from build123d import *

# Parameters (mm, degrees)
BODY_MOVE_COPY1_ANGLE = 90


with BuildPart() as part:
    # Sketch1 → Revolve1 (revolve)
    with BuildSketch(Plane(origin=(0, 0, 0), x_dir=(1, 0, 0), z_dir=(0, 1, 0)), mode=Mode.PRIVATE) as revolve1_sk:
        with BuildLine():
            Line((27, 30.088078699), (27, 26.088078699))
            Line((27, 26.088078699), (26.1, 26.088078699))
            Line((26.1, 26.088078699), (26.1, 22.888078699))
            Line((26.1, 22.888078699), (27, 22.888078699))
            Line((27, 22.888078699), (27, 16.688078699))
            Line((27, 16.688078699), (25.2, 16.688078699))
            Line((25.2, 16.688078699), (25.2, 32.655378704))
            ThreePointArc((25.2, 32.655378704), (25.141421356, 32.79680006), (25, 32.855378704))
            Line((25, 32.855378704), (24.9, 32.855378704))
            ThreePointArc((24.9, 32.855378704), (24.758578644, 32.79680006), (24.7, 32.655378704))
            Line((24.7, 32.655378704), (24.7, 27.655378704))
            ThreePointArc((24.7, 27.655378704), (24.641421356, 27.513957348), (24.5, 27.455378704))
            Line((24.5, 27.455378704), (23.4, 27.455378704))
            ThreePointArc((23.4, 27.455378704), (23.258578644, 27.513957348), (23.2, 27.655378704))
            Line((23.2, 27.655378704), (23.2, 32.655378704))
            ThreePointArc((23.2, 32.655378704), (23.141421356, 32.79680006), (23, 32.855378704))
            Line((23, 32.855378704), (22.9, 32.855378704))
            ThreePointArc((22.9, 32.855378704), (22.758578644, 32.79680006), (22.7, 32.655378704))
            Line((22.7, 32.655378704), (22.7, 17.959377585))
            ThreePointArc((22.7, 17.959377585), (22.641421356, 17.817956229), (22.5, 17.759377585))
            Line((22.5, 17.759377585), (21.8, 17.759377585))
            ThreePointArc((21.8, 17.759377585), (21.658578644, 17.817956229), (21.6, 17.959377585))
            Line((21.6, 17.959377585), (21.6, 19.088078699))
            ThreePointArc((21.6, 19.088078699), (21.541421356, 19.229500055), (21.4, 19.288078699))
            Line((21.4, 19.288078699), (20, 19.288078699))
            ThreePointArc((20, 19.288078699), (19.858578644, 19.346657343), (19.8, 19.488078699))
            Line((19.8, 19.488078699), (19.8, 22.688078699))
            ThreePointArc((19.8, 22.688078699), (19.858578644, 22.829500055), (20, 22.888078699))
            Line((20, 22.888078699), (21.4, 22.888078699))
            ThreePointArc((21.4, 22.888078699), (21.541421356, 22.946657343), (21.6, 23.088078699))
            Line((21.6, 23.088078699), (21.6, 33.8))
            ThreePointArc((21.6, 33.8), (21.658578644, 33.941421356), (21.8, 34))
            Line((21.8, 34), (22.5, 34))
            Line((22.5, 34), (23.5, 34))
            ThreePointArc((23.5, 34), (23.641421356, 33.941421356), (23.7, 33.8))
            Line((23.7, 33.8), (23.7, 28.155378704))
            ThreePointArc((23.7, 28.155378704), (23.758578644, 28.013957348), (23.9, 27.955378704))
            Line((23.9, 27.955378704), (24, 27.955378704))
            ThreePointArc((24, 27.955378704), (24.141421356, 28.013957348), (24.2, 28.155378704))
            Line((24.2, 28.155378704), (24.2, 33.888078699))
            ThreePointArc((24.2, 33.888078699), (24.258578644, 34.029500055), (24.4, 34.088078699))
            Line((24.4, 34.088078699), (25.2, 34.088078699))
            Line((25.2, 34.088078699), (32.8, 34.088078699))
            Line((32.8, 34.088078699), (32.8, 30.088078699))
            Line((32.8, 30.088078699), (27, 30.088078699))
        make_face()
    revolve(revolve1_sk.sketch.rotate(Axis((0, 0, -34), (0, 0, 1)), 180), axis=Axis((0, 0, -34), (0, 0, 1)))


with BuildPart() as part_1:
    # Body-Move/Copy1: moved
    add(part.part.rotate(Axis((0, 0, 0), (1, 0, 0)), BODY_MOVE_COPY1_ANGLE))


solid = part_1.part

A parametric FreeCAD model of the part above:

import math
import FreeCAD as App
import Part
import Sketcher

V = App.Vector
Q = App.Units.Quantity

doc = App.newDocument("Part")
params = doc.addObject("Spreadsheet::Sheet", "Params")
for row, (alias, value) in enumerate([
    ("sketch1_radius", "0.2 mm"),
    ("sketch1_height", "4 mm"),
    ("sketch1_height2", "5 mm"),
    ("sketch1_width", "5.8 mm"),
    ("sketch1_width2", "8.4 mm"),
    ("revolution_angle", "360 deg"),
], start=1):
    params.set(f"A{row}", alias)
    params.set(f"B{row}", "=" + value)
    params.setAlias(f"B{row}", alias)

body = doc.addObject("PartDesign::Body", "Body")

# Sketch on XZ plane
sketch1 = body.newObject("Sketcher::SketchObject", "Sketch")
sketch1.AttachmentSupport = (doc.getObject("XZ_Plane"), [""])
sketch1.MapMode = "FlatFace"
sketch1.addGeometry(Part.LineSegment(V(27, -26.088079, 0), V(27, -30.088079, 0)), False)
sketch1.addGeometry(Part.LineSegment(V(27, -30.088079, 0), V(32.8, -30.088079, 0)), False)
sketch1.addGeometry(Part.LineSegment(V(32.8, -30.088079, 0), V(32.8, -34.088079, 0)), False)
sketch1.addGeometry(Part.LineSegment(V(32.8, -34.088079, 0), V(24.4, -34.088079, 0)), False)
sketch1.addGeometry(Part.ArcOfCircle(Part.Circle(V(24.4, -33.888079, 0), V(0, 0, 1), 0.2), math.radians(-180), math.radians(-90)), False)
sketch1.addGeometry(Part.LineSegment(V(24.2, -33.888079, 0), V(24.2, -28.155379, 0)), False)
sketch1.addGeometry(Part.ArcOfCircle(Part.Circle(V(24, -28.155379, 0), V(0, 0, 1), 0.2), math.radians(0), math.radians(90)), False)
sketch1.addGeometry(Part.LineSegment(V(24, -27.955379, 0), V(23.9, -27.955379, 0)), False)
sketch1.addGeometry(Part.ArcOfCircle(Part.Circle(V(23.9, -28.155379, 0), V(0, 0, 1), 0.2), math.radians(90), math.radians(180)), False)
sketch1.addGeometry(Part.LineSegment(V(23.7, -28.155379, 0), V(23.7, -33.8, 0)), False)
sketch1.addGeometry(Part.ArcOfCircle(Part.Circle(V(23.5, -33.8, 0), V(0, 0, 1), 0.2), math.radians(-90), math.radians(0)), False)
sketch1.addGeometry(Part.LineSegment(V(23.5, -34, 0), V(21.8, -34, 0)), False)
sketch1.addGeometry(Part.ArcOfCircle(Part.Circle(V(21.8, -33.8, 0), V(0, 0, 1), 0.2), math.radians(-180), math.radians(-90)), False)
sketch1.addGeometry(Part.LineSegment(V(21.6, -33.8, 0), V(21.6, -23.088079, 0)), False)
sketch1.addGeometry(Part.ArcOfCircle(Part.Circle(V(21.4, -23.088079, 0), V(0, 0, 1), 0.2), math.radians(0), math.radians(90)), False)
sketch1.addGeometry(Part.LineSegment(V(21.4, -22.888079, 0), V(20, -22.888079, 0)), False)
sketch1.addGeometry(Part.ArcOfCircle(Part.Circle(V(20, -22.688079, 0), V(0, 0, 1), 0.2), math.radians(-180), math.radians(-90)), False)
sketch1.addGeometry(Part.LineSegment(V(19.8, -22.688079, 0), V(19.8, -19.488079, 0)), False)
sketch1.addGeometry(Part.ArcOfCircle(Part.Circle(V(20, -19.488079, 0), V(0, 0, 1), 0.2), math.radians(90), math.radians(180)), False)
sketch1.addGeometry(Part.LineSegment(V(20, -19.288079, 0), V(21.4, -19.288079, 0)), False)
sketch1.addGeometry(Part.ArcOfCircle(Part.Circle(V(21.4, -19.088079, 0), V(0, 0, 1), 0.2), math.radians(-90), math.radians(0)), False)
sketch1.addGeometry(Part.LineSegment(V(21.6, -19.088079, 0), V(21.6, -17.959378, 0)), False)
sketch1.addGeometry(Part.ArcOfCircle(Part.Circle(V(21.8, -17.959378, 0), V(0, 0, 1), 0.2), math.radians(90), math.radians(180)), False)
sketch1.addGeometry(Part.LineSegment(V(21.8, -17.759378, 0), V(22.5, -17.759378, 0)), False)
sketch1.addGeometry(Part.ArcOfCircle(Part.Circle(V(22.5, -17.959378, 0), V(0, 0, 1), 0.2), math.radians(0), math.radians(90)), False)
sketch1.addGeometry(Part.LineSegment(V(22.7, -17.959378, 0), V(22.7, -32.655379, 0)), False)
sketch1.addGeometry(Part.ArcOfCircle(Part.Circle(V(22.9, -32.655379, 0), V(0, 0, 1), 0.2), math.radians(-180), math.radians(-90)), False)
sketch1.addGeometry(Part.LineSegment(V(22.9, -32.855379, 0), V(23, -32.855379, 0)), False)
sketch1.addGeometry(Part.ArcOfCircle(Part.Circle(V(23, -32.655379, 0), V(0, 0, 1), 0.2), math.radians(-90), math.radians(0)), False)
sketch1.addGeometry(Part.LineSegment(V(23.2, -32.655379, 0), V(23.2, -27.655379, 0)), False)
sketch1.addGeometry(Part.ArcOfCircle(Part.Circle(V(23.4, -27.655379, 0), V(0, 0, 1), 0.2), math.radians(90), math.radians(180)), False)
sketch1.addGeometry(Part.LineSegment(V(23.4, -27.455379, 0), V(24.5, -27.455379, 0)), False)
sketch1.addGeometry(Part.ArcOfCircle(Part.Circle(V(24.5, -27.655379, 0), V(0, 0, 1), 0.2), math.radians(0), math.radians(90)), False)
sketch1.addGeometry(Part.LineSegment(V(24.7, -27.655379, 0), V(24.7, -32.655379, 0)), False)
sketch1.addGeometry(Part.ArcOfCircle(Part.Circle(V(24.9, -32.655379, 0), V(0, 0, 1), 0.2), math.radians(-180), math.radians(-90)), False)
sketch1.addGeometry(Part.LineSegment(V(24.9, -32.855379, 0), V(25, -32.855379, 0)), False)
sketch1.addGeometry(Part.ArcOfCircle(Part.Circle(V(25, -32.655379, 0), V(0, 0, 1), 0.2), math.radians(-90), math.radians(0)), False)
sketch1.addGeometry(Part.LineSegment(V(25.2, -32.655379, 0), V(25.2, -16.688079, 0)), False)
sketch1.addGeometry(Part.LineSegment(V(25.2, -16.688079, 0), V(27, -16.688079, 0)), False)
sketch1.addGeometry(Part.LineSegment(V(27, -16.688079, 0), V(27, -22.888079, 0)), False)
sketch1.addGeometry(Part.LineSegment(V(27, -22.888079, 0), V(26.1, -22.888079, 0)), False)
sketch1.addGeometry(Part.LineSegment(V(26.1, -22.888079, 0), V(26.1, -26.088079, 0)), False)
sketch1.addGeometry(Part.LineSegment(V(26.1, -26.088079, 0), V(27, -26.088079, 0)), False)
sketch1.addConstraint(Sketcher.Constraint("Coincident", 0, 2, 1, 1))
sketch1.addConstraint(Sketcher.Constraint("Coincident", 1, 2, 2, 1))
sketch1.addConstraint(Sketcher.Constraint("Coincident", 2, 2, 3, 1))
sketch1.addConstraint(Sketcher.Constraint("Tangent", 3, 2, 4, 2))
sketch1.addConstraint(Sketcher.Constraint("Tangent", 4, 1, 5, 1))
sketch1.addConstraint(Sketcher.Constraint("Tangent", 5, 2, 6, 1))
sketch1.addConstraint(Sketcher.Constraint("Tangent", 6, 2, 7, 1))
sketch1.addConstraint(Sketcher.Constraint("Tangent", 7, 2, 8, 1))
sketch1.addConstraint(Sketcher.Constraint("Tangent", 8, 2, 9, 1))
sketch1.addConstraint(Sketcher.Constraint("Tangent", 9, 2, 10, 2))
sketch1.addConstraint(Sketcher.Constraint("Tangent", 10, 1, 11, 1))
sketch1.addConstraint(Sketcher.Constraint("Tangent", 11, 2, 12, 2))
sketch1.addConstraint(Sketcher.Constraint("Tangent", 12, 1, 13, 1))
sketch1.addConstraint(Sketcher.Constraint("Tangent", 13, 2, 14, 1))
sketch1.addConstraint(Sketcher.Constraint("Tangent", 14, 2, 15, 1))
sketch1.addConstraint(Sketcher.Constraint("Tangent", 15, 2, 16, 2))
sketch1.addConstraint(Sketcher.Constraint("Tangent", 16, 1, 17, 1))
sketch1.addConstraint(Sketcher.Constraint("Tangent", 17, 2, 18, 2))
sketch1.addConstraint(Sketcher.Constraint("Tangent", 18, 1, 19, 1))
sketch1.addConstraint(Sketcher.Constraint("Tangent", 19, 2, 20, 1))
sketch1.addConstraint(Sketcher.Constraint("Tangent", 20, 2, 21, 1))
sketch1.addConstraint(Sketcher.Constraint("Tangent", 21, 2, 22, 2))
sketch1.addConstraint(Sketcher.Constraint("Tangent", 22, 1, 23, 1))
sketch1.addConstraint(Sketcher.Constraint("Tangent", 23, 2, 24, 2))
sketch1.addConstraint(Sketcher.Constraint("Tangent", 24, 1, 25, 1))
sketch1.addConstraint(Sketcher.Constraint("Tangent", 25, 2, 26, 1))
sketch1.addConstraint(Sketcher.Constraint("Tangent", 26, 2, 27, 1))
sketch1.addConstraint(Sketcher.Constraint("Tangent", 27, 2, 28, 1))
sketch1.addConstraint(Sketcher.Constraint("Tangent", 28, 2, 29, 1))
sketch1.addConstraint(Sketcher.Constraint("Tangent", 29, 2, 30, 2))
sketch1.addConstraint(Sketcher.Constraint("Tangent", 30, 1, 31, 1))
sketch1.addConstraint(Sketcher.Constraint("Tangent", 31, 2, 32, 2))
sketch1.addConstraint(Sketcher.Constraint("Tangent", 32, 1, 33, 1))
sketch1.addConstraint(Sketcher.Constraint("Tangent", 33, 2, 34, 1))
sketch1.addConstraint(Sketcher.Constraint("Tangent", 34, 2, 35, 1))
sketch1.addConstraint(Sketcher.Constraint("Tangent", 35, 2, 36, 1))
sketch1.addConstraint(Sketcher.Constraint("Tangent", 36, 2, 37, 1))
sketch1.addConstraint(Sketcher.Constraint("Coincident", 37, 2, 38, 1))
sketch1.addConstraint(Sketcher.Constraint("Coincident", 38, 2, 39, 1))
sketch1.addConstraint(Sketcher.Constraint("Coincident", 39, 2, 40, 1))
sketch1.addConstraint(Sketcher.Constraint("Coincident", 40, 2, 41, 1))
sketch1.addConstraint(Sketcher.Constraint("Coincident", 41, 2, 42, 1))
sketch1.addConstraint(Sketcher.Constraint("Coincident", 42, 2, 0, 1))
sketch1.addConstraint(Sketcher.Constraint("Vertical", 0))
sketch1.addConstraint(Sketcher.Constraint("Horizontal", 1))
sketch1.addConstraint(Sketcher.Constraint("Vertical", 2))
sketch1.addConstraint(Sketcher.Constraint("Horizontal", 3))
sketch1.addConstraint(Sketcher.Constraint("Vertical", 5))
sketch1.addConstraint(Sketcher.Constraint("Horizontal", 7))
sketch1.addConstraint(Sketcher.Constraint("Vertical", 9))
sketch1.addConstraint(Sketcher.Constraint("Horizontal", 11))
sketch1.addConstraint(Sketcher.Constraint("Vertical", 13))
sketch1.addConstraint(Sketcher.Constraint("Horizontal", 15))
sketch1.addConstraint(Sketcher.Constraint("Vertical", 17))
sketch1.addConstraint(Sketcher.Constraint("Horizontal", 19))
sketch1.addConstraint(Sketcher.Constraint("Vertical", 21))
sketch1.addConstraint(Sketcher.Constraint("Horizontal", 23))
sketch1.addConstraint(Sketcher.Constraint("Vertical", 25))
sketch1.addConstraint(Sketcher.Constraint("Horizontal", 27))
sketch1.addConstraint(Sketcher.Constraint("Vertical", 29))
sketch1.addConstraint(Sketcher.Constraint("Horizontal", 31))
sketch1.addConstraint(Sketcher.Constraint("Vertical", 33))
sketch1.addConstraint(Sketcher.Constraint("Horizontal", 35))
sketch1.addConstraint(Sketcher.Constraint("Vertical", 37))
sketch1.addConstraint(Sketcher.Constraint("Horizontal", 38))
sketch1.addConstraint(Sketcher.Constraint("Vertical", 39))
sketch1.addConstraint(Sketcher.Constraint("Horizontal", 40))
sketch1.addConstraint(Sketcher.Constraint("Vertical", 41))
sketch1.addConstraint(Sketcher.Constraint("Horizontal", 42))
sketch1.addConstraint(Sketcher.Constraint("Equal", 4, 6))
sketch1.addConstraint(Sketcher.Constraint("Equal", 6, 8))
sketch1.addConstraint(Sketcher.Constraint("Equal", 8, 10))
sketch1.addConstraint(Sketcher.Constraint("Equal", 10, 12))
sketch1.addConstraint(Sketcher.Constraint("Equal", 12, 14))
sketch1.addConstraint(Sketcher.Constraint("Equal", 14, 16))
sketch1.addConstraint(Sketcher.Constraint("Equal", 16, 18))
sketch1.addConstraint(Sketcher.Constraint("Equal", 18, 20))
sketch1.addConstraint(Sketcher.Constraint("Equal", 20, 22))
sketch1.addConstraint(Sketcher.Constraint("Equal", 22, 24))
sketch1.addConstraint(Sketcher.Constraint("Equal", 24, 26))
sketch1.addConstraint(Sketcher.Constraint("Equal", 26, 28))
sketch1.addConstraint(Sketcher.Constraint("Equal", 28, 30))
sketch1.addConstraint(Sketcher.Constraint("Equal", 30, 32))
sketch1.addConstraint(Sketcher.Constraint("Equal", 32, 34))
sketch1.addConstraint(Sketcher.Constraint("Equal", 34, 36))
sketch1.addConstraint(Sketcher.Constraint("Horizontal", 28, 3, 34, 3))
sketch1.addConstraint(Sketcher.Constraint("Horizontal", 15, 2, 39, 2))
sketch1.addConstraint(Sketcher.Constraint("Vertical", 14, 3, 20, 3))
sketch1.addConstraint(Sketcher.Constraint("Vertical", 0, 2, 38, 2))
sketch1.addConstraint(Sketcher.Constraint("Equal", 7, 27))
sketch1.addConstraint(Sketcher.Constraint("Equal", 27, 35))
sketch1.addConstraint(Sketcher.Constraint("Equal", 0, 2))
sketch1.addConstraint(Sketcher.Constraint("Equal", 17, 41))
sketch1.addConstraint(Sketcher.Constraint("Radius", 4, Q("0.2 mm")))
sketch1.addConstraint(Sketcher.Constraint("DistanceY", 0, 2, 0, 1, Q("4 mm")))
sketch1.addConstraint(Sketcher.Constraint("DistanceY", 29, 1, 29, 2, Q("5 mm")))
sketch1.addConstraint(Sketcher.Constraint("DistanceX", 1, 1, 1, 2, Q("5.8 mm")))
sketch1.addConstraint(Sketcher.Constraint("DistanceX", 3, 2, 3, 1, Q("8.4 mm")))
sketch1.addConstraint(Sketcher.Constraint("DistanceX", 7, 2, 7, 1, Q("0.1 mm")))
sketch1.addConstraint(Sketcher.Constraint("DistanceX", 11, 2, 11, 1, Q("1.7 mm")))
sketch1.addConstraint(Sketcher.Constraint("DistanceX", 15, 2, 15, 1, Q("1.4 mm")))
sketch1.addConstraint(Sketcher.Constraint("DistanceX", 23, 1, 23, 2, Q("0.7 mm")))
sketch1.addConstraint(Sketcher.Constraint("DistanceX", 31, 1, 31, 2, Q("1.1 mm")))
sketch1.addConstraint(Sketcher.Constraint("DistanceX", 40, 2, 40, 1, Q("0.9 mm")))
sketch1.addConstraint(Sketcher.Constraint("DistanceY", 17, 1, 17, 2, Q("3.2 mm")))
sketch1.addConstraint(Sketcher.Constraint("DistanceY", 39, 2, 39, 1, Q("6.2 mm")))
sketch1.addConstraint(Sketcher.Constraint("DistanceX", -1, 1, 6, 3, Q("24 mm")))
sketch1.addConstraint(Sketcher.Constraint("DistanceY", 10, 1, -1, 1, Q("34 mm")))
sketch1.addConstraint(Sketcher.Constraint("DistanceY", 26, 3, 8, 3, Q("4.5 mm")))
sketch1.addConstraint(Sketcher.Constraint("DistanceY", 25, 2, 25, 1, Q("14.696001 mm")))
sketch1.addConstraint(Sketcher.Constraint("DistanceY", 5, 1, 5, 2, Q("5.7327 mm")))
sketch1.addConstraint(Sketcher.Constraint("DistanceY", 9, 2, 9, 1, Q("5.644621 mm")))
sketch1.setExpression("Constraints[93]", "Params.sketch1_radius")
sketch1.setExpression("Constraints[94]", "Params.sketch1_height")
sketch1.setExpression("Constraints[95]", "Params.sketch1_height2")
sketch1.setExpression("Constraints[96]", "Params.sketch1_width")
sketch1.setExpression("Constraints[97]", "Params.sketch1_width2")
revolution = body.newObject("PartDesign::Revolution", "Revolution")
revolution.Profile = sketch1
revolution.ReferenceAxis = (sketch1, ["V_Axis"])
revolution.setExpression("Angle", "Params.revolution_angle")
body2 = doc.addObject("PartDesign::Body", "Body001")
doc.recompute()

body.Placement = App.Placement(V(0, 0, 0), App.Rotation(V(1, 0, 0), 90))
boolean = body2.newObject("PartDesign::Boolean", "Boolean")
boolean.Type = "Fuse"
boolean.addObjects([body])

doc.recompute()
